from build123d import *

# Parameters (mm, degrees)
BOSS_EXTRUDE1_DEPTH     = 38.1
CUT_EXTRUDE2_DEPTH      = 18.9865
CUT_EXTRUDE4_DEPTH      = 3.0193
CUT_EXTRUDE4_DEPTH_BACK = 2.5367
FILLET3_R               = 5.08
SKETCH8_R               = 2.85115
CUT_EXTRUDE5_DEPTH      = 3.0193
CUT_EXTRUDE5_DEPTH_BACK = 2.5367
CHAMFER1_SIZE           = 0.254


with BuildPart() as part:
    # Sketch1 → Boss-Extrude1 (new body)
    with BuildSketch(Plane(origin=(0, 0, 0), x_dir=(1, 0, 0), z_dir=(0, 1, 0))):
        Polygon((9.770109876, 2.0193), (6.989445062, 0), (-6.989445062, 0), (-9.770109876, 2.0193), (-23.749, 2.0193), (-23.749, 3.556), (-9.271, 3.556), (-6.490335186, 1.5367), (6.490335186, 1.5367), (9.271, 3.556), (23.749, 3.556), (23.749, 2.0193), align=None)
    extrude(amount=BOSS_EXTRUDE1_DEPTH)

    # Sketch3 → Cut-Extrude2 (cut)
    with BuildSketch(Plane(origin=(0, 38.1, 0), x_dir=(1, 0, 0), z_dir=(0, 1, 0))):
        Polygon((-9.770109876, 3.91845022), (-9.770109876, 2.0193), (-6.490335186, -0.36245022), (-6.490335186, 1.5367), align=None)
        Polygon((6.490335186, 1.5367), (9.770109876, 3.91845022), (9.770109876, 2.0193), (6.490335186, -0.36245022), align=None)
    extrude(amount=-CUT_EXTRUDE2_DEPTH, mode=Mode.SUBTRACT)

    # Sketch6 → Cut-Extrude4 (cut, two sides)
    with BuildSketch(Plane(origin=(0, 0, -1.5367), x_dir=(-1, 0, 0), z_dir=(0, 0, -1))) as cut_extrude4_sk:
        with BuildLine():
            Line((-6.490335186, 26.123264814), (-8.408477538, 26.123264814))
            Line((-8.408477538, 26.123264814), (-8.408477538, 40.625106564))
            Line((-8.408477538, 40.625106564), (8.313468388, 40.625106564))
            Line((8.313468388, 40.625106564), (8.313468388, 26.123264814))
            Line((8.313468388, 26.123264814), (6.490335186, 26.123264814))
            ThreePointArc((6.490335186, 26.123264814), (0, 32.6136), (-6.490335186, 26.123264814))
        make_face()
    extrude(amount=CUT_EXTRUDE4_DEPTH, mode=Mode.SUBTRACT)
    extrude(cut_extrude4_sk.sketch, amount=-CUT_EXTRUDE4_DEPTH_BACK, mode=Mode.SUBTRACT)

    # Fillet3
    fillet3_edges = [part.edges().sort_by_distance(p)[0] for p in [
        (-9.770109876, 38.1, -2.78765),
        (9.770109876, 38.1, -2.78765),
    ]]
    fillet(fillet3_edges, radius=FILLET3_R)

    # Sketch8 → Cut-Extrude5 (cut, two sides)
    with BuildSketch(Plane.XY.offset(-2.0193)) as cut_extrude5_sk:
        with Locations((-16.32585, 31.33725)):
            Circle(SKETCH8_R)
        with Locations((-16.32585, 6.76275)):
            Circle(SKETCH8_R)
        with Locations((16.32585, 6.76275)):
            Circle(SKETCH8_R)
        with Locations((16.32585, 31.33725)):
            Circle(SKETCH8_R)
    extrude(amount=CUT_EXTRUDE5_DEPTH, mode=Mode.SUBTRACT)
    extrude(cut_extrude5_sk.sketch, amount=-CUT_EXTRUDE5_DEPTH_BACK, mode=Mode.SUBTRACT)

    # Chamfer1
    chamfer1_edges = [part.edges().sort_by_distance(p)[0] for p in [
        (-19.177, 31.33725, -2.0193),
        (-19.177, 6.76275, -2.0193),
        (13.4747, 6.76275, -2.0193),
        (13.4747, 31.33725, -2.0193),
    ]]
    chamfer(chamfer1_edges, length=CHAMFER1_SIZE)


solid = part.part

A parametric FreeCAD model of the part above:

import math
import FreeCAD as App
import Part
import Sketcher
Q = App.Units.Quantity


def edges_at(feature, points):
    """Names of the edges that pass closest to the given points."""
    edges = feature.Shape.Edges
    near = lambda p: min(range(len(edges)), key=lambda i: edges[i].distToShape(Part.Vertex(*p))[0])
    return sorted({f"Edge{near(p) + 1}" for p in points})

doc = App.newDocument("Part")
body = doc.addObject("PartDesign::Body", "Body")

sketch1 = doc.addObject("Sketcher::SketchObject", "Sketch")
body.addObject(sketch1)
sketch1.AttachmentSupport = (doc.XZ_Plane, [""])
sketch1.MapMode = "FlatFace"
sketch1.addGeometry([
    Part.LineSegment(App.Vector(7, 0, 0), App.Vector(9.8, -2, 0)),
    Part.LineSegment(App.Vector(9.8, -2, 0), App.Vector(23.7, -2, 0)),
    Part.LineSegment(App.Vector(23.7, -2, 0), App.Vector(23.7, -3.6, 0)),
    Part.LineSegment(App.Vector(23.7, -3.6, 0), App.Vector(9.3, -3.6, 0)),
    Part.LineSegment(App.Vector(9.3, -3.6, 0), App.Vector(6.5, -1.5, 0)),
    Part.LineSegment(App.Vector(6.5, -1.5, 0), App.Vector(-6.5, -1.5, 0)),
    Part.LineSegment(App.Vector(-6.5, -1.5, 0), App.Vector(-9.3, -3.6, 0)),
    Part.LineSegment(App.Vector(-9.3, -3.6, 0), App.Vector(-23.7, -3.6, 0)),
    Part.LineSegment(App.Vector(-23.7, -3.6, 0), App.Vector(-23.7, -2, 0)),
    Part.LineSegment(App.Vector(-23.7, -2, 0), App.Vector(-9.8, -2, 0)),
    Part.LineSegment(App.Vector(-9.8, -2, 0), App.Vector(-7, 0, 0)),
    Part.LineSegment(App.Vector(-7, 0, 0), App.Vector(7, 0, 0)),
], False)
sketch1.addConstraint([
    Sketcher.Constraint("Coincident", 0, 2, 1, 1),
    Sketcher.Constraint("Coincident", 1, 2, 2, 1),
    Sketcher.Constraint("Coincident", 2, 2, 3, 1),
    Sketcher.Constraint("Coincident", 3, 2, 4, 1),
    Sketcher.Constraint("Coincident", 4, 2, 5, 1),
    Sketcher.Constraint("Coincident", 5, 2, 6, 1),
    Sketcher.Constraint("Coincident", 6, 2, 7, 1),
    Sketcher.Constraint("Coincident", 7, 2, 8, 1),
    Sketcher.Constraint("Coincident", 8, 2, 9, 1),
    Sketcher.Constraint("Coincident", 9, 2, 10, 1),
    Sketcher.Constraint("Coincident", 10, 2, 11, 1),
    Sketcher.Constraint("Coincident", 11, 2, 0, 1),
    Sketcher.Constraint("Horizontal", 1),
    Sketcher.Constraint("Vertical", 2),
    Sketcher.Constraint("Horizontal", 3),
    Sketcher.Constraint("Horizontal", 5),
    Sketcher.Constraint("Horizontal", 7),
    Sketcher.Constraint("Vertical", 8),
    Sketcher.Constraint("Horizontal", 9),
    Sketcher.Constraint("Horizontal", 11),
    Sketcher.Constraint("Symmetric", 10, 2, 11, 2, -1, 1),
    Sketcher.Constraint("Symmetric", 3, 2, 6, 2, -2),
    Sketcher.Constraint("Symmetric", 1, 2, 8, 2, -2),
    Sketcher.Constraint("Parallel", 0, 4),
    Sketcher.Constraint("Parallel", 6, 10),
    Sketcher.Constraint("Equal", 1, 9),
    Sketcher.Constraint("Equal", 9, 11),
    Sketcher.Constraint("Equal", 0, 4),
    Sketcher.Constraint("DistanceX", 3, 2, 3, 1, Q("0.57 in")),
    Sketcher.Constraint("DistanceX", 6, 2, 2, 2, Q("1.3 in")),
    Sketcher.Constraint("DistanceY", 2, 2, -1, 1, Q("0.14 in")),
    Sketcher.Constraint("DistanceY", 2, 2, 2, 1, Q("0.0605 in")),
    Sketcher.Constraint("DistanceX", 10, 2, 4, 2, Q("0.5307 in")),
])
pad1 = doc.addObject("PartDesign::Pad", "Pad")
body.addObject(pad1)
pad1.Profile = sketch1
pad1.Length = Q("1.5 in")
pad1.Reversed = True

sketch2 = doc.addObject("Sketcher::SketchObject", "Sketch001")
body.addObject(sketch2)
sketch2.AttachmentSupport = (doc.XZ_Plane, [""])
sketch2.MapMode = "FlatFace"
sketch2.AttachmentOffset = App.Placement(App.Vector(0, 0, -1.5 * 25.4), App.Rotation())
sketch2.addGeometry([
    Part.LineSegment(App.Vector(-9.8, -3.9, 0), App.Vector(-9.8, -2, 0)),
    Part.LineSegment(App.Vector(-9.8, -2, 0), App.Vector(-6.5, 0.4, 0)),
    Part.LineSegment(App.Vector(-6.5, 0.4, 0), App.Vector(-6.5, -1.5, 0)),
    Part.LineSegment(App.Vector(-6.5, -1.5, 0), App.Vector(-9.8, -3.9, 0)),
    Part.LineSegment(App.Vector(9.8, -3.9, 0), App.Vector(6.5, -1.5, 0)),
    Part.LineSegment(App.Vector(6.5, -1.5, 0), App.Vector(6.5, 0.4, 0)),
    Part.LineSegment(App.Vector(6.5, 0.4, 0), App.Vector(9.8, -2, 0)),
    Part.LineSegment(App.Vector(9.8, -2, 0), App.Vector(9.8, -3.9, 0)),
], False)
sketch2.addConstraint([
    Sketcher.Constraint("Coincident", 0, 2, 1, 1),
    Sketcher.Constraint("Coincident", 1, 2, 2, 1),
    Sketcher.Constraint("Coincident", 2, 2, 3, 1),
    Sketcher.Constraint("Coincident", 3, 2, 0, 1),
    Sketcher.Constraint("Coincident", 4, 2, 5, 1),
    Sketcher.Constraint("Coincident", 5, 2, 6, 1),
    Sketcher.Constraint("Coincident", 6, 2, 7, 1),
    Sketcher.Constraint("Coincident", 7, 2, 4, 1),
    Sketcher.Constraint("Vertical", 0),
    Sketcher.Constraint("Vertical", 2),
    Sketcher.Constraint("Vertical", 5),
    Sketcher.Constraint("Vertical", 7),
    Sketcher.Constraint("Symmetric", 2, 2, 4, 2, -2),
    Sketcher.Constraint("Symmetric", 0, 2, 6, 2, -2),
    Sketcher.Constraint("Parallel", 1, 3),
    Sketcher.Constraint("Parallel", 4, 6),
    Sketcher.Constraint("Horizontal", 1, 2, 5, 2),
    Sketcher.Constraint("DistanceY", 0, 2, 2, 2, Q("0.019 in")),
    Sketcher.Constraint("DistanceY", 0, 2, -1, 1, Q("0.0795 in")),
    Sketcher.Constraint("DistanceX", 0, 2, 6, 2, Q("0.7693 in")),
    Sketcher.Constraint("DistanceY", 0, 1, 0, 2, Q("1.89915 mm")),
    Sketcher.Constraint("Distance", 1, Q("4.053351 mm")),
])
pocket1 = doc.addObject("PartDesign::Pocket", "Pocket")
body.addObject(pocket1)
pocket1.Profile = sketch2
pocket1.Length = Q("0.7475 in")
pocket1.Reversed = True

sketch3 = doc.addObject("Sketcher::SketchObject", "Sketch002")
body.addObject(sketch3)
sketch3.AttachmentSupport = (doc.XY_Plane, [""])
sketch3.MapMode = "FlatFace"
sketch3.AttachmentOffset = App.Placement(App.Vector(0, 0, -0.0605 * 25.4), App.Rotation())
sketch3.addGeometry([
    Part.LineSegment(App.Vector(8.4, 26.1, 0), App.Vector(6.5, 26.1, 0)),
    Part.ArcOfCircle(Part.Circle(App.Vector(0, 26.1, 0), App.Vector(0, 0, 1), 6.5), math.radians(0), math.radians(180)),
    Part.LineSegment(App.Vector(-6.5, 26.1, 0), App.Vector(-8.3, 26.1, 0)),
    Part.LineSegment(App.Vector(-8.3, 26.1, 0), App.Vector(-8.3, 40.6, 0)),
    Part.LineSegment(App.Vector(-8.3, 40.6, 0), App.Vector(8.4, 40.6, 0)),
    Part.LineSegment(App.Vector(8.4, 40.6, 0), App.Vector(8.4, 26.1, 0)),
], False)
sketch3.addConstraint([
    Sketcher.Constraint("Coincident", 0, 2, 1, 1),
    Sketcher.Constraint("Coincident", 1, 2, 2, 1),
    Sketcher.Constraint("Coincident", 2, 2, 3, 1),
    Sketcher.Constraint("Coincident", 3, 2, 4, 1),
    Sketcher.Constraint("Coincident", 4, 2, 5, 1),
    Sketcher.Constraint("Coincident", 5, 2, 0, 1),
    Sketcher.Constraint("Horizontal", 0),
    Sketcher.Constraint("Horizontal", 2),
    Sketcher.Constraint("Vertical", 3),
    Sketcher.Constraint("Horizontal", 4),
    Sketcher.Constraint("Vertical", 5),
    Sketcher.Constraint("Symmetric", 0, 2, 1, 2, -2),
    Sketcher.Constraint("Horizontal", 1, 3, 0, 2),
    Sketcher.Constraint("Radius", 1, Q("6.490335 mm")),
    Sketcher.Constraint("DistanceY", 3, 1, 3, 2, Q("14.501842 mm")),
    Sketcher.Constraint("DistanceX", 0, 2, 0, 1, Q("1.918142 mm")),
    Sketcher.Constraint("DistanceX", 2, 2, 2, 1, Q("1.823133 mm")),
    Sketcher.Constraint("DistanceY", -1, 1, 1, 3, Q("26.123265 mm")),
])
pocket2 = doc.addObject("PartDesign::Pocket", "Pocket001")
body.addObject(pocket2)
pocket2.Profile = sketch3
pocket2.Type = "ThroughAll"
pocket2.Midplane = True
doc.recompute()

fillet = doc.addObject("PartDesign::Fillet", "Fillet")
body.addObject(fillet)
fillet.Base = (pocket2, edges_at(pocket2, [(-9.77, 38.1, -2.788), (9.77, 38.1, -2.788)]))
fillet.Radius = Q("0.2 in")

sketch4 = doc.addObject("Sketcher::SketchObject", "Sketch003")
body.addObject(sketch4)
sketch4.AttachmentSupport = (doc.XY_Plane, [""])
sketch4.MapMode = "FlatFace"
sketch4.AttachmentOffset = App.Placement(App.Vector(0, 0, -0.0795 * 25.4), App.Rotation())
sketch4.addGeometry([
    Part.Circle(App.Vector(-16.3, 31.3, 0), App.Vector(0, 0, 1), 2.9),
    Part.Circle(App.Vector(-16.3, 6.8, 0), App.Vector(0, 0, 1), 2.9),
    Part.Circle(App.Vector(16.3, 6.8, 0), App.Vector(0, 0, 1), 2.9),
    Part.Circle(App.Vector(16.3, 31.3, 0), App.Vector(0, 0, 1), 2.9),
], False)
sketch4.addConstraint([
    Sketcher.Constraint("Equal", 0, 1),
    Sketcher.Constraint("Equal", 1, 2),
    Sketcher.Constraint("Equal", 2, 3),
    Sketcher.Constraint("Symmetric", 1, 3, 2, 3, -2),
    Sketcher.Constraint("Symmetric", 0, 3, 3, 3, -2),
    Sketcher.Constraint("Vertical", 0, 3, 1, 3),
    Sketcher.Constraint("Diameter", 0, Q("0.2245 in")),
    Sketcher.Constraint("DistanceY", 1, 3, 0, 3, Q("0.9675 in")),
    Sketcher.Constraint("DistanceX", 1, 3, 2, 3, Q("1.2855 in")),
    Sketcher.Constraint("DistanceY", -1, 1, 0, 3, Q("31.33725 mm")),
])
pocket3 = doc.addObject("PartDesign::Pocket", "Pocket002")
body.addObject(pocket3)
pocket3.Profile = sketch4
pocket3.Type = "ThroughAll"
pocket3.Midplane = True
doc.recompute()

chamfer = doc.addObject("PartDesign::Chamfer", "Chamfer")
body.addObject(chamfer)
chamfer.Base = (pocket3, edges_at(pocket3, [
    (-19.177, 31.337, -2.019),
    (-19.177, 6.763, -2.019),
    (13.475, 6.763, -2.019),
    (13.475, 31.337, -2.019),
]))
chamfer.Size = Q("0.01 in")

doc.recompute()
